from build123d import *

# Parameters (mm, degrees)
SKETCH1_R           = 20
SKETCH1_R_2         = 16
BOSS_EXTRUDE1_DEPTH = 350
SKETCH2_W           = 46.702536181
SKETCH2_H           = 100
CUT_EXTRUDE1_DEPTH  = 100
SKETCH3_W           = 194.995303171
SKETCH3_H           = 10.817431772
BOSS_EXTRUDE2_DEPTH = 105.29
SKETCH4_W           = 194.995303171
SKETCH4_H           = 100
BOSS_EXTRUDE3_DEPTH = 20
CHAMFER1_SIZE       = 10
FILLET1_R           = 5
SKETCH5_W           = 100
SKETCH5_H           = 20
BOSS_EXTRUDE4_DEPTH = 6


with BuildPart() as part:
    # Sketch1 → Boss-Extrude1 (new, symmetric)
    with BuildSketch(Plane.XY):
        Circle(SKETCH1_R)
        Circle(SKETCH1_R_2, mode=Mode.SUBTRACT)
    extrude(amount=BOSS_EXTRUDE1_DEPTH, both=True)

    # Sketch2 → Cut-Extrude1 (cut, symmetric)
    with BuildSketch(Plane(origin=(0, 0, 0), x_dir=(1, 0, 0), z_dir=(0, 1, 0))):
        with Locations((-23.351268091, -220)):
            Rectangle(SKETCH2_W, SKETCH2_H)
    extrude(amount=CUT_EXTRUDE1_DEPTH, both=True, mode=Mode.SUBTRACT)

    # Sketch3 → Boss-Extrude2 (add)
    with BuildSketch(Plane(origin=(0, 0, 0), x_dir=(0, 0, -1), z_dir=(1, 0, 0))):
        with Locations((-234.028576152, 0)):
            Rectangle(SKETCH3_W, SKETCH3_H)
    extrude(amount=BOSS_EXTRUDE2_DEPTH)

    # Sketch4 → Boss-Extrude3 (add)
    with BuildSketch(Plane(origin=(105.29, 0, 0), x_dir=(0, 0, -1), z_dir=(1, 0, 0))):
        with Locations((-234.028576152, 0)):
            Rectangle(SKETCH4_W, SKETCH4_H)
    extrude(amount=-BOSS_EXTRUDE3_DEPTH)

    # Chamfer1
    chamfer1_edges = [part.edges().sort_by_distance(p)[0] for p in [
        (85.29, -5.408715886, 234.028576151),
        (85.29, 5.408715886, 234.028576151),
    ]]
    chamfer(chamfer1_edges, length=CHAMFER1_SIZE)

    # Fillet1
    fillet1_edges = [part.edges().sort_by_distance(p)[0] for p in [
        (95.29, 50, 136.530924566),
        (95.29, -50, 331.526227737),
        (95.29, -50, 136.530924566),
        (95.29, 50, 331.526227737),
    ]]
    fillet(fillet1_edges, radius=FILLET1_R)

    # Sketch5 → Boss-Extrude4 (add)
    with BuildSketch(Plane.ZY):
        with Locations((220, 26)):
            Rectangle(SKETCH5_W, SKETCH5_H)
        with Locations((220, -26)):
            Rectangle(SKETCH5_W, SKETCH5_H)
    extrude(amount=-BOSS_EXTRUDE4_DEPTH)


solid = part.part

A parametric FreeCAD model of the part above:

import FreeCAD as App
import Part
import Sketcher

V = App.Vector


def edges_at(feature, points):
    """Names of the edges that pass closest to the given points."""
    edges = feature.Shape.Edges
    near = lambda p: min(range(len(edges)), key=lambda i: edges[i].distToShape(Part.Vertex(*p))[0])
    return sorted({f"Edge{near(p) + 1}" for p in points})


def add_polygon(sketch, points):
    """Adds a closed chain of lines whose ends are joined by coincident constraints."""
    first, n = sketch.GeometryCount, len(points)
    for a, b in zip(points, points[1:] + points[:1]):
        sketch.addGeometry(Part.LineSegment(App.Vector(*a, 0), App.Vector(*b, 0)), False)
    for i in range(n):
        sketch.addConstraint(Sketcher.Constraint("Coincident", first + i, 2, first + (i + 1) % n, 1))

doc = App.newDocument("Part")
body = doc.addObject("PartDesign::Body", "Body")

# Sketch on XY plane
sketch1 = doc.addObject("Sketcher::SketchObject", "Sketch")
body.addObject(sketch1)
sketch1.AttachmentSupport = (doc.XY_Plane, [""])
sketch1.MapMode = "FlatFace"
sketch1.addGeometry(Part.Circle(V(0, 0, 0), V(0, 0, 1), 20), False)
sketch1.addGeometry(Part.Circle(V(0, 0, 0), V(0, 0, 1), 16), False)
sketch1.addConstraint(Sketcher.Constraint("Coincident", 0, 3, -1, 1))
sketch1.addConstraint(Sketcher.Constraint("Coincident", 1, 3, -1, 1))
sketch1.addConstraint(Sketcher.Constraint("Diameter", 0, 40.0))
sketch1.addConstraint(Sketcher.Constraint("Diameter", 1, 32.0))
pad1 = doc.addObject("PartDesign::Pad", "Pad")
body.addObject(pad1)
pad1.Profile = sketch1
pad1.Length = 700
pad1.Midplane = True

# Sketch on XZ plane
sketch2 = doc.addObject("Sketcher::SketchObject", "Sketch001")
body.addObject(sketch2)
sketch2.AttachmentSupport = (doc.XZ_Plane, [""])
sketch2.MapMode = "FlatFace"
add_polygon(sketch2, [(-47, 170), (-47, 270), (0, 270), (0, 170)])  # lines 0-3
sketch2.addConstraint(Sketcher.Constraint("Vertical", 0))
sketch2.addConstraint(Sketcher.Constraint("Horizontal", 1))
sketch2.addConstraint(Sketcher.Constraint("Vertical", 2))
sketch2.addConstraint(Sketcher.Constraint("Horizontal", 3))
sketch2.addConstraint(Sketcher.Constraint("PointOnObject", 1, 2, -2))
sketch2.addConstraint(Sketcher.Constraint("DistanceY", 0, 1, 0, 2, 100.0))
sketch2.addConstraint(Sketcher.Constraint("DistanceY", -1, 1, 0, 2, 270.0))
sketch2.addConstraint(Sketcher.Constraint("DistanceX", 1, 1, 1, 2, 46.702536))
pocket1 = doc.addObject("PartDesign::Pocket", "Pocket")
body.addObject(pocket1)
pocket1.Profile = sketch2
pocket1.Length = 200
pocket1.Midplane = True

# Sketch on YZ plane
sketch3 = doc.addObject("Sketcher::SketchObject", "Sketch002")
body.addObject(sketch3)
sketch3.AttachmentSupport = (doc.YZ_Plane, [""])
sketch3.MapMode = "FlatFace"
add_polygon(sketch3, [(5, 332), (-5, 332), (-5, 137), (5, 137)])  # lines 0-3
sketch3.addConstraint(Sketcher.Constraint("Horizontal", 0))
sketch3.addConstraint(Sketcher.Constraint("Vertical", 1))
sketch3.addConstraint(Sketcher.Constraint("Horizontal", 2))
sketch3.addConstraint(Sketcher.Constraint("Vertical", 3))
sketch3.addConstraint(Sketcher.Constraint("DistanceX", 0, 2, 0, 1, 10.817432))
sketch3.addConstraint(Sketcher.Constraint("DistanceY", 1, 2, 1, 1, 194.995303))
sketch3.addConstraint(Sketcher.Constraint("DistanceX", 0, 2, -1, 1, 5.408716))
sketch3.addConstraint(Sketcher.Constraint("DistanceY", -1, 1, 0, 2, 331.526228))
pad2 = doc.addObject("PartDesign::Pad", "Pad001")
body.addObject(pad2)
pad2.Profile = sketch3
pad2.Length = 105.29

# Sketch on YZ plane
sketch4 = doc.addObject("Sketcher::SketchObject", "Sketch003")
body.addObject(sketch4)
sketch4.AttachmentSupport = (doc.YZ_Plane, [""])
sketch4.MapMode = "FlatFace"
sketch4.AttachmentOffset = App.Placement(V(0, 0, 105.29), App.Rotation())
add_polygon(sketch4, [(50, 332), (-50, 332), (-50, 137), (50, 137)])  # lines 0-3
sketch4.addConstraint(Sketcher.Constraint("Horizontal", 0))
sketch4.addConstraint(Sketcher.Constraint("Vertical", 1))
sketch4.addConstraint(Sketcher.Constraint("Horizontal", 2))
sketch4.addConstraint(Sketcher.Constraint("Vertical", 3))
sketch4.addConstraint(Sketcher.Constraint("DistanceX", 0, 2, 0, 1, 100.0))
sketch4.addConstraint(Sketcher.Constraint("DistanceX", 0, 2, -1, 1, 50.0))
sketch4.addConstraint(Sketcher.Constraint("DistanceY", 1, 2, 1, 1, 194.995303))
sketch4.addConstraint(Sketcher.Constraint("DistanceY", -1, 1, 0, 2, 331.526228))
pad3 = doc.addObject("PartDesign::Pad", "Pad002")
body.addObject(pad3)
pad3.Profile = sketch4
pad3.Length = 20
pad3.Reversed = True
doc.recompute()

chamfer = doc.addObject("PartDesign::Chamfer", "Chamfer")
body.addObject(chamfer)
chamfer.Base = (pad3, edges_at(pad3, [(85.29, -5.409, 234.029), (85.29, 5.409, 234.029)]))
chamfer.Size = 10
doc.recompute()

fillet = doc.addObject("PartDesign::Fillet", "Fillet")
body.addObject(fillet)
fillet.Base = (chamfer, edges_at(chamfer, [
    (95.29, 50, 136.531),
    (95.29, -50, 331.526),
    (95.29, -50, 136.531),
    (95.29, 50, 331.526),
]))
fillet.Radius = 5

# Sketch on YZ plane
sketch5 = doc.addObject("Sketcher::SketchObject", "Sketch004")
body.addObject(sketch5)
sketch5.AttachmentSupport = (doc.YZ_Plane, [""])
sketch5.MapMode = "FlatFace"
add_polygon(sketch5, [(36, 170), (16, 170), (16, 270), (36, 270)])  # lines 0-3
add_polygon(sketch5, [(-16, 170), (-36, 170), (-36, 270), (-16, 270)])  # lines 4-7
sketch5.addConstraint(Sketcher.Constraint("Horizontal", 0))
sketch5.addConstraint(Sketcher.Constraint("Vertical", 1))
sketch5.addConstraint(Sketcher.Constraint("Horizontal", 2))
sketch5.addConstraint(Sketcher.Constraint("Vertical", 3))
sketch5.addConstraint(Sketcher.Constraint("Horizontal", 4))
sketch5.addConstraint(Sketcher.Constraint("Vertical", 5))
sketch5.addConstraint(Sketcher.Constraint("Horizontal", 6))
sketch5.addConstraint(Sketcher.Constraint("Vertical", 7))
sketch5.addConstraint(Sketcher.Constraint("Symmetric", 3, 2, 4, 2, -2))
sketch5.addConstraint(Sketcher.Constraint("Symmetric", 1, 2, 6, 2, -2))
sketch5.addConstraint(Sketcher.Constraint("DistanceX", 0, 2, 0, 1, 20.0))
sketch5.addConstraint(Sketcher.Constraint("DistanceY", 1, 1, 1, 2, 100.0))
sketch5.addConstraint(Sketcher.Constraint("DistanceX", -1, 1, 0, 2, 16.0))
sketch5.addConstraint(Sketcher.Constraint("DistanceY", -1, 1, 0, 2, 170.0))
pad4 = doc.addObject("PartDesign::Pad", "Pad003")
body.addObject(pad4)
pad4.Profile = sketch5
pad4.Length = 6

doc.recompute()
